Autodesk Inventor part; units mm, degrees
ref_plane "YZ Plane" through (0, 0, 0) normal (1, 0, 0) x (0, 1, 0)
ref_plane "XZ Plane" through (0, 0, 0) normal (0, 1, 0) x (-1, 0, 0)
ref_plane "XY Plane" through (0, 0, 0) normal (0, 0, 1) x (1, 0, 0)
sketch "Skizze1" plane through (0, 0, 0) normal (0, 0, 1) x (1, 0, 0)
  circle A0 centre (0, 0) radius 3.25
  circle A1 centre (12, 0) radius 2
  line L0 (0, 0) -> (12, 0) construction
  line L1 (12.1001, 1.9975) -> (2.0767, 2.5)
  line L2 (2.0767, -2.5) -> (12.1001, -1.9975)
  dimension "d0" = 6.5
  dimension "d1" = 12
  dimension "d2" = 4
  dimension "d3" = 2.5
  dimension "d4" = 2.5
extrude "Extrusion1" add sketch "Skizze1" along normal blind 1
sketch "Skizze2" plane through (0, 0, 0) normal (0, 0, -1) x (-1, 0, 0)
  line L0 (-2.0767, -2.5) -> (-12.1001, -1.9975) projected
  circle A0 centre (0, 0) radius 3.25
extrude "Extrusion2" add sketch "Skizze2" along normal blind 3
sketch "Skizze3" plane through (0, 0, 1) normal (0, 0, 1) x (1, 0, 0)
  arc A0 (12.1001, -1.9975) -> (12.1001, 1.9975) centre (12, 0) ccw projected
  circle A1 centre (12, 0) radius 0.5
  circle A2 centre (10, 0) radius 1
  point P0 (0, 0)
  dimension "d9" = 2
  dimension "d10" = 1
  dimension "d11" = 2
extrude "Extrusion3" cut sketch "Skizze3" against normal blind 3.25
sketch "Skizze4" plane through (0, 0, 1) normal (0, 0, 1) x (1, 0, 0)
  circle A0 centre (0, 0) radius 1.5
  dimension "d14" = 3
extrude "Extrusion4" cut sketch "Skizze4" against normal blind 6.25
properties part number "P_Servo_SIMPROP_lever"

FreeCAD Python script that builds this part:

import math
import FreeCAD as App
import Part
import Sketcher

V = App.Vector
Q = App.Units.Quantity

doc = App.newDocument("Part")
body = doc.addObject("PartDesign::Body", "Body")

# Sketch on XY plane
sketch1 = body.newObject("Sketcher::SketchObject", "Sketch")
sketch1.AttachmentSupport = (doc.getObject("XY_Plane"), [""])
sketch1.MapMode = "FlatFace"
sketch1.addGeometry(Part.ArcOfCircle(Part.Circle(V(0, 0, 0), V(0, 0, 1), 3.25), math.radians(50.284266), math.radians(309.715734)), False)
sketch1.addGeometry(Part.LineSegment(V(2.0767, -2.5, 0), V(12.1001, -1.9975, 0)), False)
sketch1.addGeometry(Part.ArcOfCircle(Part.Circle(V(12, 0, 0), V(0, 0, 1), 2), math.radians(-87.131157), math.radians(87.131157)), False)
sketch1.addGeometry(Part.LineSegment(V(12.1001, 1.9975, 0), V(2.0767, 2.5, 0)), False)
sketch1.addConstraint(Sketcher.Constraint("Coincident", 0, 2, 1, 1))
sketch1.addConstraint(Sketcher.Constraint("Tangent", 1, 2, 2, 1))
sketch1.addConstraint(Sketcher.Constraint("Tangent", 2, 2, 3, 1))
sketch1.addConstraint(Sketcher.Constraint("Coincident", 3, 2, 0, 1))
sketch1.addConstraint(Sketcher.Constraint("Coincident", 0, 3, -1, 1))
sketch1.addConstraint(Sketcher.Constraint("Symmetric", 1, 2, 2, 2, -1))
sketch1.addConstraint(Sketcher.Constraint("Radius", 2, Q("2 mm")))
sketch1.addConstraint(Sketcher.Constraint("Radius", 0, Q("3.25 mm")))
sketch1.addConstraint(Sketcher.Constraint("DistanceX", -1, 1, 2, 3, Q("12 mm")))
sketch1.addConstraint(Sketcher.Constraint("DistanceY", 0, 2, -1, 1, Q("2.5 mm")))
pad1 = body.newObject("PartDesign::Pad", "Pad")
pad1.Profile = sketch1
pad1.Length = 1

# Sketch on XY plane
sketch2 = body.newObject("Sketcher::SketchObject", "Sketch001")
sketch2.AttachmentSupport = (doc.getObject("XY_Plane"), [""])
sketch2.MapMode = "FlatFace"
sketch2.addGeometry(Part.Circle(V(0, 0, 0), V(0, 0, 1), 3.25), False)
sketch2.addConstraint(Sketcher.Constraint("Coincident", 0, 3, -1, 1))
sketch2.addConstraint(Sketcher.Constraint("Diameter", 0, Q("6.5 mm")))
pad2 = body.newObject("PartDesign::Pad", "Pad001")
pad2.Profile = sketch2
pad2.Length = 3
pad2.Reversed = True

# Sketch on XY plane
sketch3 = body.newObject("Sketcher::SketchObject", "Sketch002")
sketch3.AttachmentSupport = (doc.getObject("XY_Plane"), [""])
sketch3.MapMode = "FlatFace"
sketch3.AttachmentOffset = App.Placement(V(0, 0, 1), App.Rotation())
sketch3.addGeometry(Part.Circle(V(12, 0, 0), V(0, 0, 1), 0.5), False)
sketch3.addGeometry(Part.Circle(V(10, 0, 0), V(0, 0, 1), 1), False)
sketch3.addConstraint(Sketcher.Constraint("PointOnObject", 0, 3, -1))
sketch3.addConstraint(Sketcher.Constraint("PointOnObject", 1, 3, -1))
sketch3.addConstraint(Sketcher.Constraint("Diameter", 0, Q("1 mm")))
sketch3.addConstraint(Sketcher.Constraint("Diameter", 1, Q("2 mm")))
sketch3.addConstraint(Sketcher.Constraint("DistanceX", 1, 3, 0, 3, Q("2 mm")))
sketch3.addConstraint(Sketcher.Constraint("DistanceX", -1, 1, 0, 3, Q("12 mm")))
pocket1 = body.newObject("PartDesign::Pocket", "Pocket")
pocket1.Profile = sketch3
pocket1.Length = 3.25

# Sketch on XY plane
sketch4 = body.newObject("Sketcher::SketchObject", "Sketch003")
sketch4.AttachmentSupport = (doc.getObject("XY_Plane"), [""])
sketch4.MapMode = "FlatFace"
sketch4.AttachmentOffset = App.Placement(V(0, 0, 1), App.Rotation())
sketch4.addGeometry(Part.Circle(V(0, 0, 0), V(0, 0, 1), 1.5), False)
sketch4.addConstraint(Sketcher.Constraint("Coincident", 0, 3, -1, 1))
sketch4.addConstraint(Sketcher.Constraint("Diameter", 0, Q("3 mm")))
pocket2 = body.newObject("PartDesign::Pocket", "Pocket001")
pocket2.Profile = sketch4
pocket2.Length = 6.25

doc.recompute()
